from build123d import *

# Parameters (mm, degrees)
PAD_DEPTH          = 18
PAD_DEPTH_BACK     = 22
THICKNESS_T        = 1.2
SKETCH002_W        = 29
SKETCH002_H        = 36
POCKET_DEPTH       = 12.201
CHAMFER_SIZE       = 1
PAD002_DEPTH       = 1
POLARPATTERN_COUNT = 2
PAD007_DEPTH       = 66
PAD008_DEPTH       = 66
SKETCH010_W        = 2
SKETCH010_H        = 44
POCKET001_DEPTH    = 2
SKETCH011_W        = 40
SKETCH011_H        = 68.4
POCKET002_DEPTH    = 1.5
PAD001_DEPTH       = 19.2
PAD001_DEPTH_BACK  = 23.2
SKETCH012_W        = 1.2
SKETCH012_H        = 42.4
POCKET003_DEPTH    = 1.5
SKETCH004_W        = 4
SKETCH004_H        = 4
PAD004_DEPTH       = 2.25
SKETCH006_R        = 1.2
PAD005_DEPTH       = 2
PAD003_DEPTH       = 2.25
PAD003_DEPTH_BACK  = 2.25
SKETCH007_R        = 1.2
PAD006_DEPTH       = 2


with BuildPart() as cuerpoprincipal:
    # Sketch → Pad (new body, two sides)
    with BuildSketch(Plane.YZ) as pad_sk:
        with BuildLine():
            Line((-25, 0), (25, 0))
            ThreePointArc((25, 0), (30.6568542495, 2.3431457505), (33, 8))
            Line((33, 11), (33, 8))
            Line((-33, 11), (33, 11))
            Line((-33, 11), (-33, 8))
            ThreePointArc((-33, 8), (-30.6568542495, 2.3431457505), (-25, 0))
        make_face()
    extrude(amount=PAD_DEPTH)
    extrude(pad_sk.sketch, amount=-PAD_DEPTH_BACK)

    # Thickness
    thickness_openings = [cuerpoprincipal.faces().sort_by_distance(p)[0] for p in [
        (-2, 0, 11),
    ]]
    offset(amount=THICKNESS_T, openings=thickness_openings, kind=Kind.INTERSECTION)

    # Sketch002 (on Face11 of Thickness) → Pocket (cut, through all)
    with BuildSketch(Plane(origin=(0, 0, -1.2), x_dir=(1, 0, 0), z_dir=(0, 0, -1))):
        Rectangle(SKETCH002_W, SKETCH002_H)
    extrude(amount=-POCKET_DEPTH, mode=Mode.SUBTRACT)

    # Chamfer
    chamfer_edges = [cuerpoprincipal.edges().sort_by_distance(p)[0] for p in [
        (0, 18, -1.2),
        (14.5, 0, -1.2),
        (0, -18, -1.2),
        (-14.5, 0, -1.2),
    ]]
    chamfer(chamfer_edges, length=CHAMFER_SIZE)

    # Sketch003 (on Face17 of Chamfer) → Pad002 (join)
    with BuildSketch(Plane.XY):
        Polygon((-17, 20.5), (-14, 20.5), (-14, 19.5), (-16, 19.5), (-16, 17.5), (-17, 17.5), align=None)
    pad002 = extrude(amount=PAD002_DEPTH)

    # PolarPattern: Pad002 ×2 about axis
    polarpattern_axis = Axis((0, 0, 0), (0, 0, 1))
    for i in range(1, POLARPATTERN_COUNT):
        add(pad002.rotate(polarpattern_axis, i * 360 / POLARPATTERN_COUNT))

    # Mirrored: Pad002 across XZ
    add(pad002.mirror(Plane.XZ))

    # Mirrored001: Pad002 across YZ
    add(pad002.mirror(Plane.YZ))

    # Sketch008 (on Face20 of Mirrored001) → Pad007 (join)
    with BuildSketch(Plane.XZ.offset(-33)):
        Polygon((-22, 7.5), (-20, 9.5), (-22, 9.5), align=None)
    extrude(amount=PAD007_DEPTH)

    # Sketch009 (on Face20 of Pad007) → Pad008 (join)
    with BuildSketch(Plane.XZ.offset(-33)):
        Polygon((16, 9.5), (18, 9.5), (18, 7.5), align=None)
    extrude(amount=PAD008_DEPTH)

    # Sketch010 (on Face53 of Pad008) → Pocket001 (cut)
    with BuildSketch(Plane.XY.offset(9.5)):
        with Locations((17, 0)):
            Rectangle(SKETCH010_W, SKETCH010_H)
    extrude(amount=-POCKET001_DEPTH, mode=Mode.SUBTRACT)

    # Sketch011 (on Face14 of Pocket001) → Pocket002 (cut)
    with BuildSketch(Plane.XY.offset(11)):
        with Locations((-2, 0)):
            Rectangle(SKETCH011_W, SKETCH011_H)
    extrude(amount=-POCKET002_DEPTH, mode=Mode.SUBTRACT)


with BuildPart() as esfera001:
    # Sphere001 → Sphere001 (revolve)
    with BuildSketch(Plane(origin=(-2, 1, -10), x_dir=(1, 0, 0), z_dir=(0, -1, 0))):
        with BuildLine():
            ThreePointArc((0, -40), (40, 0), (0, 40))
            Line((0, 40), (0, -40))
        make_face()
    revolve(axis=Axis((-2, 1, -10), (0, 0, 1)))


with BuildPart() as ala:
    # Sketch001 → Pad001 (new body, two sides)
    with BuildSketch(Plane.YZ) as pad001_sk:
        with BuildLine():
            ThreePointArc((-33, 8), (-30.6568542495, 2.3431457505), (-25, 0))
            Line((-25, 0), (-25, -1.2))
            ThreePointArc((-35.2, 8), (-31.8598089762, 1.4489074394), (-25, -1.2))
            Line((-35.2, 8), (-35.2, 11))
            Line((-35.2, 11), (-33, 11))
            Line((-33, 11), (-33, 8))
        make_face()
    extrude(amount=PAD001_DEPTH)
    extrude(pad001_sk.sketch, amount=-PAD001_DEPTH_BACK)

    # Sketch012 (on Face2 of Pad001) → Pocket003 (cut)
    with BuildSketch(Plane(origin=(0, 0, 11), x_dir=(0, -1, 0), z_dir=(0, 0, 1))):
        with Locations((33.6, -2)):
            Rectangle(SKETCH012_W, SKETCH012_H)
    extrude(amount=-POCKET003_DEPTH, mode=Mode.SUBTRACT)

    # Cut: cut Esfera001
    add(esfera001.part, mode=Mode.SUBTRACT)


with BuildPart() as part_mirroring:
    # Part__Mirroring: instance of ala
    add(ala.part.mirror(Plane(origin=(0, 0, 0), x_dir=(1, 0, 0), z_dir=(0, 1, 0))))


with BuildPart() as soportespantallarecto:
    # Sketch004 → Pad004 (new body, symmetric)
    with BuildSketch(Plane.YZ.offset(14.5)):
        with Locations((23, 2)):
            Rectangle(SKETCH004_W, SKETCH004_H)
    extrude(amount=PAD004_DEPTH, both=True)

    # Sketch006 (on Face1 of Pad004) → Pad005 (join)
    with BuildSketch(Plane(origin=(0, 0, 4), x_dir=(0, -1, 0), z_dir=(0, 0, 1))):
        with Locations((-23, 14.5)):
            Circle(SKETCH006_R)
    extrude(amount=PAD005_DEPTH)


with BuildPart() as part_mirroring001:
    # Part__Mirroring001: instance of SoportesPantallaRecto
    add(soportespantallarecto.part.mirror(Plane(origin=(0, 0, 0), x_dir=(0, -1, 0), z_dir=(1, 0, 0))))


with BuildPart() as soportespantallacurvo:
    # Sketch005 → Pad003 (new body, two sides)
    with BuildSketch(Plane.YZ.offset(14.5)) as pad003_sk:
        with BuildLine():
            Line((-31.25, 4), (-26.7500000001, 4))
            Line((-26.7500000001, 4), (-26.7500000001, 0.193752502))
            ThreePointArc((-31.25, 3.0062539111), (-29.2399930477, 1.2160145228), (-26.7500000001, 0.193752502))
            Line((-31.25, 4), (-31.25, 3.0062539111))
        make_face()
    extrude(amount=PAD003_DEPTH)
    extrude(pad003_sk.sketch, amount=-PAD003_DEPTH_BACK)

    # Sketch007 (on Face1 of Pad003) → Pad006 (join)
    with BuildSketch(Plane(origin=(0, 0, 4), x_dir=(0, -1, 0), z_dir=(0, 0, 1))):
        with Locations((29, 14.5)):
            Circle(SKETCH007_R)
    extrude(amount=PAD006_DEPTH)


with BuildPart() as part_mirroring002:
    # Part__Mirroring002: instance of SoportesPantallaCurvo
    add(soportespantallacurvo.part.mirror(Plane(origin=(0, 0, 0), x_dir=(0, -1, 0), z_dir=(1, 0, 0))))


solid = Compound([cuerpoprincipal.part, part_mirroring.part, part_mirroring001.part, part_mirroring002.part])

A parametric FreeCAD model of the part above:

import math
import FreeCAD as App
import Part
import Sketcher
Q = App.Units.Quantity


def edges_at(feature, points):
    """Names of the edges that pass closest to the given points."""
    edges = feature.Shape.Edges
    near = lambda p: min(range(len(edges)), key=lambda i: edges[i].distToShape(Part.Vertex(*p))[0])
    return sorted({f"Edge{near(p) + 1}" for p in points})


def faces_at(feature, points):
    """Names of the faces that lie closest to the given points."""
    faces = feature.Shape.Faces
    near = lambda p: min(range(len(faces)), key=lambda i: faces[i].distToShape(Part.Vertex(*p))[0])
    return sorted({f"Face{near(p) + 1}" for p in points})

doc = App.newDocument("Part")
body = doc.addObject("PartDesign::Body", "Body")

sketch1 = body.newObject("Sketcher::SketchObject", "Sketch")
sketch1.AttachmentSupport = (doc.getObject("YZ_Plane"), [""])
sketch1.MapMode = "FlatFace"
sketch1.addGeometry([
    Part.LineSegment(App.Vector(-25, 0, 0), App.Vector(25, 0, 0)),
    Part.ArcOfCircle(Part.Circle(App.Vector(25, 8, 0), App.Vector(0, 0, 1), 8), math.radians(-90), math.radians(0)),
    Part.LineSegment(App.Vector(33, 8, 0), App.Vector(33, 11, 0)),
    Part.LineSegment(App.Vector(33, 11, 0), App.Vector(-33, 11, 0)),
    Part.LineSegment(App.Vector(-33, 11, 0), App.Vector(-33, 8, 0)),
    Part.ArcOfCircle(Part.Circle(App.Vector(-25, 8, 0), App.Vector(0, 0, 1), 8), math.radians(180), math.radians(270)),
], False)
sketch1.addConstraint([
    Sketcher.Constraint("Tangent", 0, 2, 1, 1),
    Sketcher.Constraint("Tangent", 1, 2, 2, 1),
    Sketcher.Constraint("Coincident", 2, 2, 3, 1),
    Sketcher.Constraint("Coincident", 3, 2, 4, 1),
    Sketcher.Constraint("Tangent", 4, 2, 5, 1),
    Sketcher.Constraint("Tangent", 5, 2, 0, 1),
    Sketcher.Constraint("Horizontal", 0),
    Sketcher.Constraint("Vertical", 2),
    Sketcher.Constraint("Horizontal", 3),
    Sketcher.Constraint("Vertical", 4),
    Sketcher.Constraint("Equal", 1, 5),
    Sketcher.Constraint("Symmetric", 0, 2, 5, 2, -1, 1),
    Sketcher.Constraint("Radius", 1, Q("8 mm")),
    Sketcher.Constraint("DistanceX", 0, 1, 0, 2, Q("50 mm")),
    Sketcher.Constraint("DistanceY", 2, 1, 2, 2, Q("3 mm")),
])
pad1 = body.newObject("PartDesign::Pad", "Pad")
pad1.Profile = sketch1
pad1.Type = "TwoLengths"
pad1.Length = 18
pad1.Length2 = 22
doc.recompute()

thickness = body.newObject("PartDesign::Thickness", "Thickness")
thickness.Base = (pad1, faces_at(pad1, [(-2, 0, 11)]))
thickness.Value = 1.2
thickness.Reversed = False
thickness.Join = "Intersection"

sketch2 = body.newObject("Sketcher::SketchObject", "Sketch001")
sketch2.AttachmentSupport = (doc.getObject("XY_Plane"), [""])
sketch2.MapMode = "FlatFace"
sketch2.AttachmentOffset = App.Placement(App.Vector(0, 0, -1.2), App.Rotation())
sketch2.addGeometry([
    Part.LineSegment(App.Vector(-14, -18, 0), App.Vector(-14, 18, 0)),
    Part.LineSegment(App.Vector(-14, 18, 0), App.Vector(14, 18, 0)),
    Part.LineSegment(App.Vector(14, 18, 0), App.Vector(14, -18, 0)),
    Part.LineSegment(App.Vector(14, -18, 0), App.Vector(-14, -18, 0)),
], False)
sketch2.addConstraint([
    Sketcher.Constraint("Coincident", 0, 2, 1, 1),
    Sketcher.Constraint("Coincident", 1, 2, 2, 1),
    Sketcher.Constraint("Coincident", 2, 2, 3, 1),
    Sketcher.Constraint("Coincident", 3, 2, 0, 1),
    Sketcher.Constraint("Vertical", 0),
    Sketcher.Constraint("Horizontal", 1),
    Sketcher.Constraint("Vertical", 2),
    Sketcher.Constraint("Horizontal", 3),
    Sketcher.Constraint("Symmetric", 0, 2, 2, 2, -1, 1),
    Sketcher.Constraint("DistanceX", 1, 1, 1, 2, Q("29 mm")),
    Sketcher.Constraint("DistanceY", 0, 1, 0, 2, Q("36 mm")),
])
pocket1 = body.newObject("PartDesign::Pocket", "Pocket")
pocket1.Profile = sketch2
pocket1.Type = "ThroughAll"
pocket1.Reversed = True
doc.recompute()

chamfer = body.newObject("PartDesign::Chamfer", "Chamfer")
chamfer.Base = (pocket1, edges_at(pocket1, [
    (0, 18, -1.2),
    (14.5, 0, -1.2),
    (0, -18, -1.2),
    (-14.5, 0, -1.2),
]))
chamfer.Size = 1

sketch3 = body.newObject("Sketcher::SketchObject", "Sketch002")
sketch3.AttachmentSupport = (doc.getObject("XY_Plane"), [""])
sketch3.MapMode = "FlatFace"
sketch3.addGeometry([
    Part.LineSegment(App.Vector(-14, 20.5, 0), App.Vector(-17, 20.5, 0)),
    Part.LineSegment(App.Vector(-17, 20.5, 0), App.Vector(-17, 17.5, 0)),
    Part.LineSegment(App.Vector(-17, 17.5, 0), App.Vector(-16, 17.5, 0)),
    Part.LineSegment(App.Vector(-16, 17.5, 0), App.Vector(-16, 19.5, 0)),
    Part.LineSegment(App.Vector(-16, 19.5, 0), App.Vector(-14, 19.5, 0)),
    Part.LineSegment(App.Vector(-14, 19.5, 0), App.Vector(-14, 20.5, 0)),
], False)
sketch3.addConstraint([
    Sketcher.Constraint("Coincident", 0, 2, 1, 1),
    Sketcher.Constraint("Coincident", 1, 2, 2, 1),
    Sketcher.Constraint("Coincident", 2, 2, 3, 1),
    Sketcher.Constraint("Coincident", 3, 2, 4, 1),
    Sketcher.Constraint("Coincident", 4, 2, 5, 1),
    Sketcher.Constraint("Coincident", 5, 2, 0, 1),
    Sketcher.Constraint("Horizontal", 0),
    Sketcher.Constraint("Vertical", 1),
    Sketcher.Constraint("Horizontal", 2),
    Sketcher.Constraint("Vertical", 3),
    Sketcher.Constraint("Horizontal", 4),
    Sketcher.Constraint("Vertical", 5),
    Sketcher.Constraint("Equal", 0, 1),
    Sketcher.Constraint("Equal", 4, 3),
    Sketcher.Constraint("DistanceX", 0, 2, 0, 1, Q("3 mm")),
    Sketcher.Constraint("DistanceX", 2, 1, 2, 2, Q("1 mm")),
    Sketcher.Constraint("DistanceX", 0, 2, -1, 1, Q("17 mm")),
    Sketcher.Constraint("DistanceY", -1, 1, 0, 2, Q("20.5 mm")),
])
pad2 = body.newObject("PartDesign::Pad", "Pad001")
pad2.Profile = sketch3
pad2.Length = 1
doc.recompute()

polarpattern = body.newObject("PartDesign::PolarPattern", "PolarPattern")
polarpattern.Originals = [pad2]
polarpattern.Axis = (doc.getObject("Z_Axis"), [""])
polarpattern.Angle = 360
polarpattern.Occurrences = 2
body.Tip = polarpattern
doc.recompute()

mirrored = body.newObject("PartDesign::Mirrored", "Mirrored")
mirrored.Originals = [pad2]
mirrored.MirrorPlane = (doc.getObject("XZ_Plane"), [""])
body.Tip = mirrored
doc.recompute()

mirrored2 = body.newObject("PartDesign::Mirrored", "Mirrored001")
mirrored2.Originals = [pad2]
mirrored2.MirrorPlane = (doc.getObject("YZ_Plane"), [""])
body.Tip = mirrored2

sketch4 = body.newObject("Sketcher::SketchObject", "Sketch003")
sketch4.AttachmentSupport = (doc.getObject("XZ_Plane"), [""])
sketch4.MapMode = "FlatFace"
sketch4.AttachmentOffset = App.Placement(App.Vector(0, 0, -33), App.Rotation())
sketch4.addGeometry([
    Part.LineSegment(App.Vector(-22, 7.5, 0), App.Vector(-20, 9.5, 0)),
    Part.LineSegment(App.Vector(-20, 9.5, 0), App.Vector(-22, 9.5, 0)),
    Part.LineSegment(App.Vector(-22, 9.5, 0), App.Vector(-22, 7.5, 0)),
], False)
sketch4.addConstraint([
    Sketcher.Constraint("Coincident", 0, 2, 1, 1),
    Sketcher.Constraint("Coincident", 1, 2, 2, 1),
    Sketcher.Constraint("Coincident", 2, 2, 0, 1),
    Sketcher.Constraint("Horizontal", 1),
    Sketcher.Constraint("Vertical", 2),
    Sketcher.Constraint("Equal", 1, 2),
    Sketcher.Constraint("DistanceX", 1, 2, 1, 1, Q("2 mm")),
    Sketcher.Constraint("DistanceX", 0, 2, -1, 1, Q("20 mm")),
    Sketcher.Constraint("DistanceY", -1, 1, 0, 2, Q("9.5 mm")),
])
pad3 = body.newObject("PartDesign::Pad", "Pad002")
pad3.Profile = sketch4
pad3.Length = 66

sketch5 = body.newObject("Sketcher::SketchObject", "Sketch004")
sketch5.AttachmentSupport = (doc.getObject("XZ_Plane"), [""])
sketch5.MapMode = "FlatFace"
sketch5.AttachmentOffset = App.Placement(App.Vector(0, 0, -33), App.Rotation())
sketch5.addGeometry([
    Part.LineSegment(App.Vector(18, 9.5, 0), App.Vector(16, 9.5, 0)),
    Part.LineSegment(App.Vector(16, 9.5, 0), App.Vector(18, 7.5, 0)),
    Part.LineSegment(App.Vector(18, 7.5, 0), App.Vector(18, 9.5, 0)),
], False)
sketch5.addConstraint([
    Sketcher.Constraint("Coincident", 0, 2, 1, 1),
    Sketcher.Constraint("Coincident", 1, 2, 2, 1),
    Sketcher.Constraint("Coincident", 2, 2, 0, 1),
    Sketcher.Constraint("Horizontal", 0),
    Sketcher.Constraint("Vertical", 2),
    Sketcher.Constraint("Equal", 0, 2),
    Sketcher.Constraint("DistanceX", 0, 2, 0, 1, Q("2 mm")),
    Sketcher.Constraint("DistanceX", -1, 1, 0, 2, Q("16 mm")),
    Sketcher.Constraint("DistanceY", -1, 1, 0, 2, Q("9.5 mm")),
])
pad4 = body.newObject("PartDesign::Pad", "Pad003")
pad4.Profile = sketch5
pad4.Length = 66

sketch6 = body.newObject("Sketcher::SketchObject", "Sketch005")
sketch6.AttachmentSupport = (doc.getObject("XY_Plane"), [""])
sketch6.MapMode = "FlatFace"
sketch6.AttachmentOffset = App.Placement(App.Vector(0, 0, 9.5), App.Rotation())
sketch6.addGeometry([
    Part.LineSegment(App.Vector(16, 22, 0), App.Vector(16, -22, 0)),
    Part.LineSegment(App.Vector(16, -22, 0), App.Vector(18, -22, 0)),
    Part.LineSegment(App.Vector(18, -22, 0), App.Vector(18, 22, 0)),
    Part.LineSegment(App.Vector(18, 22, 0), App.Vector(16, 22, 0)),
], False)
sketch6.addConstraint([
    Sketcher.Constraint("Coincident", 0, 2, 1, 1),
    Sketcher.Constraint("Coincident", 1, 2, 2, 1),
    Sketcher.Constraint("Coincident", 2, 2, 3, 1),
    Sketcher.Constraint("Coincident", 3, 2, 0, 1),
    Sketcher.Constraint("Vertical", 0),
    Sketcher.Constraint("Horizontal", 1),
    Sketcher.Constraint("Vertical", 2),
    Sketcher.Constraint("Horizontal", 3),
    Sketcher.Constraint("DistanceX", 1, 1, 1, 2, Q("2 mm")),
    Sketcher.Constraint("DistanceY", 0, 2, 0, 1, Q("44 mm")),
    Sketcher.Constraint("DistanceX", -1, 1, 0, 2, Q("16 mm")),
    Sketcher.Constraint("DistanceY", 0, 2, -1, 1, Q("22 mm")),
])
pocket2 = body.newObject("PartDesign::Pocket", "Pocket001")
pocket2.Profile = sketch6
pocket2.Length = 2

sketch7 = body.newObject("Sketcher::SketchObject", "Sketch006")
sketch7.AttachmentSupport = (doc.getObject("XY_Plane"), [""])
sketch7.MapMode = "FlatFace"
sketch7.AttachmentOffset = App.Placement(App.Vector(0, 0, 11), App.Rotation())
sketch7.addGeometry([
    Part.LineSegment(App.Vector(-22, 34, 0), App.Vector(-22, -34, 0)),
    Part.LineSegment(App.Vector(-22, -34, 0), App.Vector(18, -34, 0)),
    Part.LineSegment(App.Vector(18, -34, 0), App.Vector(18, 34, 0)),
    Part.LineSegment(App.Vector(18, 34, 0), App.Vector(-22, 34, 0)),
], False)
sketch7.addConstraint([
    Sketcher.Constraint("Coincident", 0, 2, 1, 1),
    Sketcher.Constraint("Coincident", 1, 2, 2, 1),
    Sketcher.Constraint("Coincident", 2, 2, 3, 1),
    Sketcher.Constraint("Coincident", 3, 2, 0, 1),
    Sketcher.Constraint("Vertical", 0),
    Sketcher.Constraint("Horizontal", 1),
    Sketcher.Constraint("Vertical", 2),
    Sketcher.Constraint("Horizontal", 3),
    Sketcher.Constraint("DistanceX", 1, 1, 1, 2, Q("40 mm")),
    Sketcher.Constraint("DistanceY", 0, 2, 0, 1, Q("68.4 mm")),
    Sketcher.Constraint("DistanceX", 0, 2, -1, 1, Q("22 mm")),
    Sketcher.Constraint("DistanceY", 0, 2, -1, 1, Q("34.2 mm")),
])
pocket3 = body.newObject("PartDesign::Pocket", "Pocket002")
pocket3.Profile = sketch7
pocket3.Length = 1.5
body2 = doc.addObject("PartDesign::Body", "Body001")

sketch8 = body2.newObject("Sketcher::SketchObject", "Sketch007")
sketch8.AttachmentSupport = (doc.getObject("XZ_Plane001"), [""])
sketch8.MapMode = "FlatFace"
sketch8.AttachmentOffset = App.Placement(App.Vector(0, 0, -1), App.Rotation())
sketch8.addGeometry([
    Part.ArcOfCircle(Part.Circle(App.Vector(-2, -10, 0), App.Vector(0, 0, 1), 40), math.radians(-90), math.radians(90)),
    Part.LineSegment(App.Vector(-2, 30, 0), App.Vector(-2, -50, 0)),
], False)
sketch8.addGeometry(Part.LineSegment(App.Vector(-2, -50, 0), App.Vector(-2, 30, 0)), True)
sketch8.addConstraint([
    Sketcher.Constraint("Coincident", 0, 1, 1, 2),
    Sketcher.Constraint("Coincident", 1, 1, 0, 2),
    Sketcher.Constraint("Vertical", 1),
    Sketcher.Constraint("Vertical", 2),
    Sketcher.Constraint("Coincident", 2, 1, 0, 1),
    Sketcher.Constraint("Equal", 1, 2),
    Sketcher.Constraint("Radius", 0, Q("40 mm")),
    Sketcher.Constraint("DistanceX", 0, 3, -1, 1, Q("2 mm")),
    Sketcher.Constraint("DistanceY", 0, 3, -1, 1, Q("10 mm")),
    Sketcher.Constraint("DistanceX", 0, 1, -1, 1, Q("2 mm")),
])
revolution = body2.newObject("PartDesign::Revolution", "Revolution")
revolution.Profile = sketch8
revolution.ReferenceAxis = (sketch8, ["Axis0"])
revolution.Angle = 360
body3 = doc.addObject("PartDesign::Body", "Body002")

sketch9 = body3.newObject("Sketcher::SketchObject", "Sketch008")
sketch9.AttachmentSupport = (doc.getObject("YZ_Plane002"), [""])
sketch9.MapMode = "FlatFace"
sketch9.addGeometry([
    Part.ArcOfCircle(Part.Circle(App.Vector(-25, 8, 0), App.Vector(0, 0, 1), 8), math.radians(180), math.radians(270)),
    Part.LineSegment(App.Vector(-33, 8, 0), App.Vector(-33, 11, 0)),
    Part.LineSegment(App.Vector(-33, 11, 0), App.Vector(-35.2, 11, 0)),
    Part.LineSegment(App.Vector(-35.2, 11, 0), App.Vector(-35.2, 8, 0)),
    Part.ArcOfCircle(Part.Circle(App.Vector(-25, 9.1, 0), App.Vector(0, 0, 1), 10.3), math.radians(-174), math.radians(-90)),
    Part.LineSegment(App.Vector(-25, -1.2, 0), App.Vector(-25, 0, 0)),
], False)
sketch9.addConstraint([
    Sketcher.Constraint("Tangent", 0, 1, 1, 1),
    Sketcher.Constraint("Coincident", 1, 2, 2, 1),
    Sketcher.Constraint("Coincident", 2, 2, 3, 1),
    Sketcher.Constraint("Coincident", 3, 2, 4, 1),
    Sketcher.Constraint("Coincident", 4, 2, 5, 1),
    Sketcher.Constraint("Coincident", 5, 2, 0, 2),
    Sketcher.Constraint("Vertical", 1),
    Sketcher.Constraint("Horizontal", 2),
    Sketcher.Constraint("Vertical", 3),
    Sketcher.Constraint("Vertical", 5),
    Sketcher.Constraint("PointOnObject", 5, 2, -1),
    Sketcher.Constraint("Horizontal", 0, 1, 3, 2),
    Sketcher.Constraint("Vertical", 0, 3, 4, 2),
    Sketcher.Constraint("Radius", 0, Q("8 mm")),
    Sketcher.Constraint("DistanceY", 1, 1, 1, 2, Q("3 mm")),
    Sketcher.Constraint("Radius", 4, Q("10.29 mm")),
    Sketcher.Constraint("DistanceX", 2, 2, 2, 1, Q("2.2 mm")),
    Sketcher.Constraint("DistanceY", 5, 1, 5, 2, Q("1.2 mm")),
    Sketcher.Constraint("DistanceX", 0, 3, -1, 1, Q("25 mm")),
])
pad5 = body3.newObject("PartDesign::Pad", "Pad004")
pad5.Profile = sketch9
pad5.Type = "TwoLengths"
pad5.Length = 19.2
pad5.Length2 = 23.2

sketch10 = body3.newObject("Sketcher::SketchObject", "Sketch009")
sketch10.AttachmentSupport = (doc.getObject("XY_Plane002"), [""])
sketch10.MapMode = "FlatFace"
sketch10.AttachmentOffset = App.Placement(App.Vector(0, 0, 11), App.Rotation())
sketch10.addGeometry([
    Part.LineSegment(App.Vector(19.2, -33, 0), App.Vector(-23.2, -33, 0)),
    Part.LineSegment(App.Vector(-23.2, -33, 0), App.Vector(-23.2, -34.2, 0)),
    Part.LineSegment(App.Vector(-23.2, -34.2, 0), App.Vector(19.2, -34.2, 0)),
    Part.LineSegment(App.Vector(19.2, -34.2, 0), App.Vector(19.2, -33, 0)),
], False)
sketch10.addConstraint([
    Sketcher.Constraint("Coincident", 0, 2, 1, 1),
    Sketcher.Constraint("Coincident", 1, 2, 2, 1),
    Sketcher.Constraint("Coincident", 2, 2, 3, 1),
    Sketcher.Constraint("Coincident", 3, 2, 0, 1),
    Sketcher.Constraint("Horizontal", 0),
    Sketcher.Constraint("Vertical", 1),
    Sketcher.Constraint("Horizontal", 2),
    Sketcher.Constraint("Vertical", 3),
    Sketcher.Constraint("DistanceX", 0, 2, 0, 1, Q("42.4 mm")),
    Sketcher.Constraint("DistanceY", 1, 2, 1, 1, Q("1.2 mm")),
    Sketcher.Constraint("DistanceY", 0, 2, -1, 1, Q("33 mm")),
    Sketcher.Constraint("DistanceX", 0, 2, -1, 1, Q("23.2 mm")),
])
pocket4 = body3.newObject("PartDesign::Pocket", "Pocket003")
pocket4.Profile = sketch10
pocket4.Length = 1.5
doc.recompute()

boolean = body3.newObject("PartDesign::Boolean", "Boolean")
boolean.Type = "Cut"
boolean.addObjects([body2])
body4 = doc.addObject("PartDesign::Body", "Body003")
doc.recompute()

mirroring = doc.addObject("Part::Mirroring", "Mirroring")
mirroring.Source = body3
mirroring.Base = App.Vector(0, 0, 0)
mirroring.Normal = App.Vector(0, 1, 0)
body4.BaseFeature = mirroring
doc.recompute()
body5 = doc.addObject("PartDesign::Body", "Body004")

sketch11 = body5.newObject("Sketcher::SketchObject", "Sketch010")
sketch11.AttachmentSupport = (doc.getObject("YZ_Plane004"), [""])
sketch11.MapMode = "FlatFace"
sketch11.AttachmentOffset = App.Placement(App.Vector(0, 0, 14.5), App.Rotation())
sketch11.addGeometry([
    Part.LineSegment(App.Vector(21, 4, 0), App.Vector(21, 0, 0)),
    Part.LineSegment(App.Vector(21, 0, 0), App.Vector(25, 0, 0)),
    Part.LineSegment(App.Vector(25, 0, 0), App.Vector(25, 4, 0)),
    Part.LineSegment(App.Vector(25, 4, 0), App.Vector(21, 4, 0)),
], False)
sketch11.addConstraint([
    Sketcher.Constraint("Coincident", 0, 2, 1, 1),
    Sketcher.Constraint("Coincident", 1, 2, 2, 1),
    Sketcher.Constraint("Coincident", 2, 2, 3, 1),
    Sketcher.Constraint("Coincident", 3, 2, 0, 1),
    Sketcher.Constraint("Vertical", 0),
    Sketcher.Constraint("Horizontal", 1),
    Sketcher.Constraint("Vertical", 2),
    Sketcher.Constraint("Horizontal", 3),
    Sketcher.Constraint("PointOnObject", 0, 2, -1),
    Sketcher.Constraint("Equal", 3, 0),
    Sketcher.Constraint("DistanceX", 1, 1, 1, 2, Q("4 mm")),
    Sketcher.Constraint("DistanceX", -1, 1, 0, 2, Q("21 mm")),
])
pad6 = body5.newObject("PartDesign::Pad", "Pad005")
pad6.Profile = sketch11
pad6.Length = 4.5
pad6.Midplane = True

sketch12 = body5.newObject("Sketcher::SketchObject", "Sketch011")
sketch12.AttachmentSupport = (doc.getObject("XY_Plane004"), [""])
sketch12.MapMode = "FlatFace"
sketch12.AttachmentOffset = App.Placement(App.Vector(0, 0, 4), App.Rotation())
sketch12.addGeometry(Part.Circle(App.Vector(14.5, 23, 0), App.Vector(0, 0, 1), 1.2), False)
sketch12.addConstraint([
    Sketcher.Constraint("Diameter", 0, Q("2.4 mm")),
    Sketcher.Constraint("DistanceY", -1, 1, 0, 3, Q("23 mm")),
    Sketcher.Constraint("DistanceX", -1, 1, 0, 3, Q("14.5 mm")),
])
pad7 = body5.newObject("PartDesign::Pad", "Pad006")
pad7.Profile = sketch12
pad7.Length = 2
body6 = doc.addObject("PartDesign::Body", "Body005")
doc.recompute()

mirroring2 = doc.addObject("Part::Mirroring", "Mirroring001")
mirroring2.Source = body5
mirroring2.Base = App.Vector(0, 0, 0)
mirroring2.Normal = App.Vector(1, 0, 0)
body6.BaseFeature = mirroring2
doc.recompute()
body7 = doc.addObject("PartDesign::Body", "Body006")

sketch13 = body7.newObject("Sketcher::SketchObject", "Sketch012")
sketch13.AttachmentSupport = (doc.getObject("YZ_Plane006"), [""])
sketch13.MapMode = "FlatFace"
sketch13.AttachmentOffset = App.Placement(App.Vector(0, 0, 14.5), App.Rotation())
sketch13.addGeometry([
    Part.LineSegment(App.Vector(-26.8, 4, 0), App.Vector(-31.2, 4, 0)),
    Part.LineSegment(App.Vector(-31.2, 4, 0), App.Vector(-31.2, 3, 0)),
    Part.ArcOfCircle(Part.Circle(App.Vector(-25, 8, 0), App.Vector(0, 0, 1), 8), math.radians(-141), math.radians(-103)),
    Part.LineSegment(App.Vector(-26.8, 0.2, 0), App.Vector(-26.8, 4, 0)),
], False)
sketch13.addConstraint([
    Sketcher.Constraint("Coincident", 0, 2, 1, 1),
    Sketcher.Constraint("Coincident", 1, 2, 2, 1),
    Sketcher.Constraint("Coincident", 2, 2, 3, 1),
    Sketcher.Constraint("Coincident", 3, 2, 0, 1),
    Sketcher.Constraint("Horizontal", 0),
    Sketcher.Constraint("Vertical", 1),
    Sketcher.Constraint("Vertical", 3),
    Sketcher.Constraint("Radius", 2, Q("8 mm")),
    Sketcher.Constraint("DistanceX", 0, 2, 0, 1, Q("4.5 mm")),
    Sketcher.Constraint("DistanceX", 2, 3, -1, 1, Q("25 mm")),
    Sketcher.Constraint("DistanceY", -1, 1, 2, 3, Q("8 mm")),
    Sketcher.Constraint("DistanceY", -1, 1, 0, 2, Q("4 mm")),
    Sketcher.Constraint("DistanceX", 0, 2, -1, 1, Q("31.25 mm")),
])
pad8 = body7.newObject("PartDesign::Pad", "Pad007")
pad8.Profile = sketch13
pad8.Type = "TwoLengths"
pad8.Length = 2.25
pad8.Length2 = 2.25

sketch14 = body7.newObject("Sketcher::SketchObject", "Sketch013")
sketch14.AttachmentSupport = (doc.getObject("XY_Plane006"), [""])
sketch14.MapMode = "FlatFace"
sketch14.AttachmentOffset = App.Placement(App.Vector(0, 0, 4), App.Rotation())
sketch14.addGeometry(Part.Circle(App.Vector(14.5, -29, 0), App.Vector(0, 0, 1), 1.2), False)
sketch14.addConstraint([
    Sketcher.Constraint("Diameter", 0, Q("2.4 mm")),
    Sketcher.Constraint("DistanceY", 0, 3, -1, 1, Q("29 mm")),
    Sketcher.Constraint("DistanceX", -1, 1, 0, 3, Q("14.5 mm")),
])
pad9 = body7.newObject("PartDesign::Pad", "Pad008")
pad9.Profile = sketch14
pad9.Length = 2
body8 = doc.addObject("PartDesign::Body", "Body007")
doc.recompute()

mirroring3 = doc.addObject("Part::Mirroring", "Mirroring002")
mirroring3.Source = body7
mirroring3.Base = App.Vector(0, 0, 0)
mirroring3.Normal = App.Vector(1, 0, 0)
body8.BaseFeature = mirroring3
doc.recompute()
body3.Visibility = False
body5.Visibility = False
body7.Visibility = False
mirroring.Visibility = False
mirroring2.Visibility = False
mirroring3.Visibility = False

doc.recompute()
